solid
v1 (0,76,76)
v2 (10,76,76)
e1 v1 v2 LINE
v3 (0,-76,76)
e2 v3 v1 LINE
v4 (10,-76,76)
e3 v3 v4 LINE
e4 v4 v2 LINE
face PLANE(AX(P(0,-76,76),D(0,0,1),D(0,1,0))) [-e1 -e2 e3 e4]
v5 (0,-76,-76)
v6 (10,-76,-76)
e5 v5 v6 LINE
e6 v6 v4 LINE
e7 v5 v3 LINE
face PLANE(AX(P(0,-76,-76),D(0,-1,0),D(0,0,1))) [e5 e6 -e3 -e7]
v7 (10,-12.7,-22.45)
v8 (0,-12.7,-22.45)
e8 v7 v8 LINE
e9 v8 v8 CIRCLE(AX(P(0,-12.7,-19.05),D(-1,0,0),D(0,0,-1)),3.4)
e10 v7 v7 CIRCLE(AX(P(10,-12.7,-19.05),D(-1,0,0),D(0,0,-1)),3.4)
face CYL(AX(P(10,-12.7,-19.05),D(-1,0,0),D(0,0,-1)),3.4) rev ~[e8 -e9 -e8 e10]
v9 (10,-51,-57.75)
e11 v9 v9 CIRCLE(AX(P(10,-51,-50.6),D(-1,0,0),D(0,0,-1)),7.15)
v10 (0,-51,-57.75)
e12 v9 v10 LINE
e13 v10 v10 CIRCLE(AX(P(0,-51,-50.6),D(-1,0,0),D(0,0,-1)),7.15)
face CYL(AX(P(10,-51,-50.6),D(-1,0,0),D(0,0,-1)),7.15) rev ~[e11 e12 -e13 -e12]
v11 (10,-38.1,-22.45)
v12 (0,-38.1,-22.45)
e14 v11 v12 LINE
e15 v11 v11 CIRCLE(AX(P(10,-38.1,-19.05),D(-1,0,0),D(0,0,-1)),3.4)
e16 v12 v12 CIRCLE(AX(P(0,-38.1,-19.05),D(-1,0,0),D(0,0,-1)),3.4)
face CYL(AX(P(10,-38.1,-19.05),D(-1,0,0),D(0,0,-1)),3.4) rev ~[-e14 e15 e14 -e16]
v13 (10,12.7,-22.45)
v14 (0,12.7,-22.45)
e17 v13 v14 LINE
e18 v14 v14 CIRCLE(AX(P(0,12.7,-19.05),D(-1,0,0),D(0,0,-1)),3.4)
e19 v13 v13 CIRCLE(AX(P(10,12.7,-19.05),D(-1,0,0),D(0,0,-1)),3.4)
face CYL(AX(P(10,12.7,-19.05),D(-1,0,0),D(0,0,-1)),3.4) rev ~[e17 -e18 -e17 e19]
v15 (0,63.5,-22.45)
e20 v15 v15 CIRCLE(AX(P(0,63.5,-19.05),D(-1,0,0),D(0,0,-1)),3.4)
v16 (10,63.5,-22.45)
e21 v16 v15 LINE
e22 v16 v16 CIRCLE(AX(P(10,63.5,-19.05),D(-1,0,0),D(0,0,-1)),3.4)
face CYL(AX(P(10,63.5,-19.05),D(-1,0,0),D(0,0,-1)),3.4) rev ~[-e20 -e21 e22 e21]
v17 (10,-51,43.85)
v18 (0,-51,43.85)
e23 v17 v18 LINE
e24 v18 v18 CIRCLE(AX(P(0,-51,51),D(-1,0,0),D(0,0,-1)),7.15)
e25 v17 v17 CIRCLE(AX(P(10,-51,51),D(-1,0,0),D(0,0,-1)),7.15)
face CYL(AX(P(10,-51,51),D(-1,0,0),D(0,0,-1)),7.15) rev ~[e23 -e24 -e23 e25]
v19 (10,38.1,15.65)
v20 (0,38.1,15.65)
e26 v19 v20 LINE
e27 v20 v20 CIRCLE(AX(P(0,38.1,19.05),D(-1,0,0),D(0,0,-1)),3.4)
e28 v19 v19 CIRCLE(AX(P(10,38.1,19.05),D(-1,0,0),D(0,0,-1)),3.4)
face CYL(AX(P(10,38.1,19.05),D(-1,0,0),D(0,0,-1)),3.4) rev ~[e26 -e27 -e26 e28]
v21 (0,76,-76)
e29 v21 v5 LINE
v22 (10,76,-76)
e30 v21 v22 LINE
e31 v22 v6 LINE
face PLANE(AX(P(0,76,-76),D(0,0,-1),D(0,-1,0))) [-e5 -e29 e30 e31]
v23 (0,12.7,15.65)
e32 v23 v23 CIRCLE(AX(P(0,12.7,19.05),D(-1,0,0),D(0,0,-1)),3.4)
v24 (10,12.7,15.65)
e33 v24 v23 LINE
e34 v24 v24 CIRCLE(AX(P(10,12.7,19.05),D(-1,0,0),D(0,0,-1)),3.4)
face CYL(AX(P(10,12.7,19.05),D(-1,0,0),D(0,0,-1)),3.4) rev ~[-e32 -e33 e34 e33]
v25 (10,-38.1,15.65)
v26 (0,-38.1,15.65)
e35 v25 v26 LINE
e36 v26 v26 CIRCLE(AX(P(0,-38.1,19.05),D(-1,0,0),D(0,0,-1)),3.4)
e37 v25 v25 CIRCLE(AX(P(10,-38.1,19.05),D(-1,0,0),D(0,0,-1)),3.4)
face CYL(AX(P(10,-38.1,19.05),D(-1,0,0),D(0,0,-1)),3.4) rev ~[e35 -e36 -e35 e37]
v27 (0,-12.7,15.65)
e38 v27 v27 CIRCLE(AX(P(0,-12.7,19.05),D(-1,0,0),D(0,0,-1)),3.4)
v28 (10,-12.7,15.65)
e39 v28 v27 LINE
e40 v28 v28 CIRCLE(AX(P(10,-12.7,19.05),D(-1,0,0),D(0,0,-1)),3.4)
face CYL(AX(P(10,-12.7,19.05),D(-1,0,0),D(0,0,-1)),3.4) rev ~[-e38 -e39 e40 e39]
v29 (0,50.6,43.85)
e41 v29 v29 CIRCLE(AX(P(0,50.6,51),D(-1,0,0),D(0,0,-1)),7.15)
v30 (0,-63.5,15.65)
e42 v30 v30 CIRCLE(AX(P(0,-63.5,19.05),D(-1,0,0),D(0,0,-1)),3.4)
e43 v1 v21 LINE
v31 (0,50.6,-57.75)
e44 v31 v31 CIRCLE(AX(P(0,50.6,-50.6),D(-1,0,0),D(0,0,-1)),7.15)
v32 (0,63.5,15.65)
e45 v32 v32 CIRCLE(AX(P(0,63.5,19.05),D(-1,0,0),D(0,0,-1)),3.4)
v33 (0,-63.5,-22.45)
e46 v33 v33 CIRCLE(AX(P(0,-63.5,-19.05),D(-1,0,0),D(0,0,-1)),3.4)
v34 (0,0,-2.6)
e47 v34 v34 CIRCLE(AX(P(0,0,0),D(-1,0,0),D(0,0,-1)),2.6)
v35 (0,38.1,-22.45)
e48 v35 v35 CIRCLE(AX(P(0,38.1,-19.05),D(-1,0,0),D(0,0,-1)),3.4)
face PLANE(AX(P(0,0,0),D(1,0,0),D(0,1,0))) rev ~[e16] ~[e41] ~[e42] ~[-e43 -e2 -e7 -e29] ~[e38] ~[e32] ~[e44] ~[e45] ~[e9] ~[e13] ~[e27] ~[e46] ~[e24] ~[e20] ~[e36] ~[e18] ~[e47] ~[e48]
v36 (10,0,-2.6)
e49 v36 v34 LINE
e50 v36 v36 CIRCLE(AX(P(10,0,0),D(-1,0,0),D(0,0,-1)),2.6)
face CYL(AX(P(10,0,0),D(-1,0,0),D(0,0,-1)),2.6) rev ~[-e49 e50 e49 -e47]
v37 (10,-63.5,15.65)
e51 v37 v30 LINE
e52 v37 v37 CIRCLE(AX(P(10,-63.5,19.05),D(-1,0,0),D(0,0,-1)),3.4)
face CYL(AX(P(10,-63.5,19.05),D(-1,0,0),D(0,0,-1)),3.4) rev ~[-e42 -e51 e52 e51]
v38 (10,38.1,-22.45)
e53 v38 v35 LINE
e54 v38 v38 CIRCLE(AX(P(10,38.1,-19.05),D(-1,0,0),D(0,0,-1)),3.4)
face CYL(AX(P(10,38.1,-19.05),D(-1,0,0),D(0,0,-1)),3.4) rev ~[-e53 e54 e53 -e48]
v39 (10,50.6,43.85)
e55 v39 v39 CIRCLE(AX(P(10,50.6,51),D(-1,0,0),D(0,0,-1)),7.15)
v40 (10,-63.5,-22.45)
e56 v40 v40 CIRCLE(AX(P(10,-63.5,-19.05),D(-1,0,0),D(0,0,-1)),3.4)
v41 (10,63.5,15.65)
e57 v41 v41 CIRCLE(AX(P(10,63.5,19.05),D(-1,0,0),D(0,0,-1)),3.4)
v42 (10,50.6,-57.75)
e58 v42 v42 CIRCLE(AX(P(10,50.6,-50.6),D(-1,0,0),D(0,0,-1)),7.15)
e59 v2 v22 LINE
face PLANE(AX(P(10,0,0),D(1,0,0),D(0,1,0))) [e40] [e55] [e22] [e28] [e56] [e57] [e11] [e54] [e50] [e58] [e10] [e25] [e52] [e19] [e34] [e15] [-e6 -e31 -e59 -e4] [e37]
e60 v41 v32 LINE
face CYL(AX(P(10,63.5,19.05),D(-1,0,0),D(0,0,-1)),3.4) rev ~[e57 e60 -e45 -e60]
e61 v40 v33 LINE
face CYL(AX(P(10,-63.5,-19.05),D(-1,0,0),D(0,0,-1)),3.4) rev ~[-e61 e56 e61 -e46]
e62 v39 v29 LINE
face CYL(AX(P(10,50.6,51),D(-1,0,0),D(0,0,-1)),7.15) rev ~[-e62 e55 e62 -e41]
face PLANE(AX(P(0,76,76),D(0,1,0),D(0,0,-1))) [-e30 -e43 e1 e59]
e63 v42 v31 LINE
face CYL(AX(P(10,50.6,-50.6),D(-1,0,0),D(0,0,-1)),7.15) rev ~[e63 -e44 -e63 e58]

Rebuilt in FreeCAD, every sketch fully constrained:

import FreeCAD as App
import Part
import Sketcher

V = App.Vector
Q = App.Units.Quantity

doc = App.newDocument("Part")
body = doc.addObject("PartDesign::Body", "Body")

sketch1 = body.newObject("Sketcher::SketchObject", "Sketch")
sketch1.AttachmentSupport = (doc.getObject("YZ_Plane"), [""])
sketch1.MapMode = "FlatFace"
sketch1.addGeometry(Part.LineSegment(V(-76, -76, 0), V(76, -76, 0)), False)
sketch1.addGeometry(Part.LineSegment(V(76, -76, 0), V(76, 76, 0)), False)
sketch1.addGeometry(Part.LineSegment(V(76, 76, 0), V(-76, 76, 0)), False)
sketch1.addGeometry(Part.LineSegment(V(-76, 76, 0), V(-76, -76, 0)), False)
sketch1.addConstraint(Sketcher.Constraint("Coincident", 0, 2, 1, 1))
sketch1.addConstraint(Sketcher.Constraint("Coincident", 1, 2, 2, 1))
sketch1.addConstraint(Sketcher.Constraint("Coincident", 2, 2, 3, 1))
sketch1.addConstraint(Sketcher.Constraint("Coincident", 3, 2, 0, 1))
sketch1.addConstraint(Sketcher.Constraint("Horizontal", 0))
sketch1.addConstraint(Sketcher.Constraint("Vertical", 1))
sketch1.addConstraint(Sketcher.Constraint("Horizontal", 2))
sketch1.addConstraint(Sketcher.Constraint("Vertical", 3))
sketch1.addConstraint(Sketcher.Constraint("Symmetric", 0, 2, 2, 2, -1, 1))
sketch1.addConstraint(Sketcher.Constraint("Equal", 2, 1))
sketch1.addConstraint(Sketcher.Constraint("DistanceX", 0, 1, 0, 2, Q("152 mm")))
pad1 = body.newObject("PartDesign::Pad", "Pad")
pad1.Profile = sketch1
pad1.Length = 10

sketch2 = body.newObject("Sketcher::SketchObject", "Sketch001")
sketch2.AttachmentSupport = (doc.getObject("YZ_Plane"), [""])
sketch2.MapMode = "FlatFace"
sketch2.AttachmentOffset = App.Placement(V(0, 0, 10), App.Rotation())
sketch2.addGeometry(Part.Circle(V(50.6, -50.6, 0), V(0, 0, 1), 7.15), False)
sketch2.addConstraint(Sketcher.Constraint("Diameter", 0, Q("14.3 mm")))
sketch2.addConstraint(Sketcher.Constraint("DistanceX", -1, 1, 0, 3, Q("50.6 mm")))
sketch2.addConstraint(Sketcher.Constraint("DistanceY", 0, 3, -1, 1, Q("50.6 mm")))
doc.recompute()
hole = body.newObject("PartDesign::Hole", "Hole")
hole.Profile = sketch2
hole.ThreadType = "None"
hole.Diameter = 14.3
hole.DepthType = "ThroughAll"

sketch3 = body.newObject("Sketcher::SketchObject", "Sketch002")
sketch3.AttachmentSupport = (doc.getObject("YZ_Plane"), [""])
sketch3.MapMode = "FlatFace"
sketch3.AttachmentOffset = App.Placement(V(0, 0, 10), App.Rotation())
sketch3.addGeometry(Part.Circle(V(50.6, 51, 0), V(0, 0, 1), 7.15), False)
sketch3.addConstraint(Sketcher.Constraint("Diameter", 0, Q("14.3 mm")))
sketch3.addConstraint(Sketcher.Constraint("DistanceY", -1, 1, 0, 3, Q("51 mm")))
sketch3.addConstraint(Sketcher.Constraint("DistanceX", -1, 1, 0, 3, Q("50.6 mm")))
doc.recompute()
hole2 = body.newObject("PartDesign::Hole", "Hole001")
hole2.Profile = sketch3
hole2.ThreadType = "None"
hole2.Diameter = 14.3
hole2.DepthType = "ThroughAll"

sketch4 = body.newObject("Sketcher::SketchObject", "Sketch003")
sketch4.AttachmentSupport = (doc.getObject("YZ_Plane"), [""])
sketch4.MapMode = "FlatFace"
sketch4.AttachmentOffset = App.Placement(V(0, 0, 10), App.Rotation())
sketch4.addGeometry(Part.Circle(V(-51, -50.6, 0), V(0, 0, 1), 7.15), False)
sketch4.addConstraint(Sketcher.Constraint("Diameter", 0, Q("14.3 mm")))
sketch4.addConstraint(Sketcher.Constraint("DistanceX", 0, 3, -1, 1, Q("51 mm")))
sketch4.addConstraint(Sketcher.Constraint("DistanceY", 0, 3, -1, 1, Q("50.6 mm")))
doc.recompute()
hole3 = body.newObject("PartDesign::Hole", "Hole002")
hole3.Profile = sketch4
hole3.ThreadType = "None"
hole3.Diameter = 14.3
hole3.DepthType = "ThroughAll"

sketch5 = body.newObject("Sketcher::SketchObject", "Sketch004")
sketch5.AttachmentSupport = (doc.getObject("YZ_Plane"), [""])
sketch5.MapMode = "FlatFace"
sketch5.AttachmentOffset = App.Placement(V(0, 0, 10), App.Rotation())
sketch5.addGeometry(Part.Circle(V(-51, 51, 0), V(0, 0, 1), 7.15), False)
sketch5.addConstraint(Sketcher.Constraint("Diameter", 0, Q("14.3 mm")))
sketch5.addConstraint(Sketcher.Constraint("DistanceX", 0, 3, -1, 1, Q("51 mm")))
sketch5.addConstraint(Sketcher.Constraint("DistanceY", -1, 1, 0, 3, Q("51 mm")))
doc.recompute()
hole4 = body.newObject("PartDesign::Hole", "Hole003")
hole4.Profile = sketch5
hole4.ThreadType = "None"
hole4.Diameter = 14.3
hole4.DepthType = "ThroughAll"

sketch6 = body.newObject("Sketcher::SketchObject", "Sketch005")
sketch6.AttachmentSupport = (doc.getObject("YZ_Plane"), [""])
sketch6.MapMode = "FlatFace"
sketch6.AttachmentOffset = App.Placement(V(0, 0, 10), App.Rotation())
sketch6.addGeometry(Part.Circle(V(63.5, -19.05, 0), V(0, 0, 1), 3.4), False)
sketch6.addConstraint(Sketcher.Constraint("Diameter", 0, Q("6.8 mm")))
sketch6.addConstraint(Sketcher.Constraint("DistanceX", -1, 1, 0, 3, Q("63.5 mm")))
sketch6.addConstraint(Sketcher.Constraint("DistanceY", 0, 3, -1, 1, Q("19.05 mm")))
doc.recompute()
hole5 = body.newObject("PartDesign::Hole", "Hole004")
hole5.Profile = sketch6
hole5.ThreadType = "None"
hole5.Diameter = 6.8
hole5.DepthType = "ThroughAll"

sketch7 = body.newObject("Sketcher::SketchObject", "Sketch006")
sketch7.AttachmentSupport = (doc.getObject("YZ_Plane"), [""])
sketch7.MapMode = "FlatFace"
sketch7.AttachmentOffset = App.Placement(V(0, 0, 10), App.Rotation())
sketch7.addGeometry(Part.Circle(V(63.5, 19.05, 0), V(0, 0, 1), 3.4), False)
sketch7.addConstraint(Sketcher.Constraint("Diameter", 0, Q("6.8 mm")))
sketch7.addConstraint(Sketcher.Constraint("DistanceX", -1, 1, 0, 3, Q("63.5 mm")))
sketch7.addConstraint(Sketcher.Constraint("DistanceY", -1, 1, 0, 3, Q("19.05 mm")))
doc.recompute()
hole6 = body.newObject("PartDesign::Hole", "Hole005")
hole6.Profile = sketch7
hole6.ThreadType = "None"
hole6.Diameter = 6.8
hole6.DepthType = "ThroughAll"
doc.recompute()

linearpattern = body.newObject("PartDesign::LinearPattern", "LinearPattern")
linearpattern.Originals = [hole5]
linearpattern.Direction = (doc.getObject("Y_Axis"), [""])
linearpattern.Mode = "offset"
linearpattern.Offset = 25.4
linearpattern.Occurrences = 6
linearpattern.Reversed = True
body.Tip = linearpattern
doc.recompute()

linearpattern2 = body.newObject("PartDesign::LinearPattern", "LinearPattern001")
linearpattern2.Originals = [hole6]
linearpattern2.Direction = (doc.getObject("Y_Axis"), [""])
linearpattern2.Mode = "offset"
linearpattern2.Offset = 25.4
linearpattern2.Occurrences = 6
linearpattern2.Reversed = True
body.Tip = linearpattern2

sketch8 = body.newObject("Sketcher::SketchObject", "Sketch007")
sketch8.AttachmentSupport = (doc.getObject("YZ_Plane"), [""])
sketch8.MapMode = "FlatFace"
sketch8.AttachmentOffset = App.Placement(V(0, 0, 10), App.Rotation())
sketch8.addGeometry(Part.Circle(V(0, 0, 0), V(0, 0, 1), 2.6), False)
sketch8.addConstraint(Sketcher.Constraint("Coincident", 0, 3, -1, 1))
sketch8.addConstraint(Sketcher.Constraint("Diameter", 0, Q("5.2 mm")))
doc.recompute()
hole7 = body.newObject("PartDesign::Hole", "Hole006")
hole7.Profile = sketch8
hole7.ThreadType = "None"
hole7.Diameter = 5.2
hole7.DepthType = "ThroughAll"

doc.recompute()
